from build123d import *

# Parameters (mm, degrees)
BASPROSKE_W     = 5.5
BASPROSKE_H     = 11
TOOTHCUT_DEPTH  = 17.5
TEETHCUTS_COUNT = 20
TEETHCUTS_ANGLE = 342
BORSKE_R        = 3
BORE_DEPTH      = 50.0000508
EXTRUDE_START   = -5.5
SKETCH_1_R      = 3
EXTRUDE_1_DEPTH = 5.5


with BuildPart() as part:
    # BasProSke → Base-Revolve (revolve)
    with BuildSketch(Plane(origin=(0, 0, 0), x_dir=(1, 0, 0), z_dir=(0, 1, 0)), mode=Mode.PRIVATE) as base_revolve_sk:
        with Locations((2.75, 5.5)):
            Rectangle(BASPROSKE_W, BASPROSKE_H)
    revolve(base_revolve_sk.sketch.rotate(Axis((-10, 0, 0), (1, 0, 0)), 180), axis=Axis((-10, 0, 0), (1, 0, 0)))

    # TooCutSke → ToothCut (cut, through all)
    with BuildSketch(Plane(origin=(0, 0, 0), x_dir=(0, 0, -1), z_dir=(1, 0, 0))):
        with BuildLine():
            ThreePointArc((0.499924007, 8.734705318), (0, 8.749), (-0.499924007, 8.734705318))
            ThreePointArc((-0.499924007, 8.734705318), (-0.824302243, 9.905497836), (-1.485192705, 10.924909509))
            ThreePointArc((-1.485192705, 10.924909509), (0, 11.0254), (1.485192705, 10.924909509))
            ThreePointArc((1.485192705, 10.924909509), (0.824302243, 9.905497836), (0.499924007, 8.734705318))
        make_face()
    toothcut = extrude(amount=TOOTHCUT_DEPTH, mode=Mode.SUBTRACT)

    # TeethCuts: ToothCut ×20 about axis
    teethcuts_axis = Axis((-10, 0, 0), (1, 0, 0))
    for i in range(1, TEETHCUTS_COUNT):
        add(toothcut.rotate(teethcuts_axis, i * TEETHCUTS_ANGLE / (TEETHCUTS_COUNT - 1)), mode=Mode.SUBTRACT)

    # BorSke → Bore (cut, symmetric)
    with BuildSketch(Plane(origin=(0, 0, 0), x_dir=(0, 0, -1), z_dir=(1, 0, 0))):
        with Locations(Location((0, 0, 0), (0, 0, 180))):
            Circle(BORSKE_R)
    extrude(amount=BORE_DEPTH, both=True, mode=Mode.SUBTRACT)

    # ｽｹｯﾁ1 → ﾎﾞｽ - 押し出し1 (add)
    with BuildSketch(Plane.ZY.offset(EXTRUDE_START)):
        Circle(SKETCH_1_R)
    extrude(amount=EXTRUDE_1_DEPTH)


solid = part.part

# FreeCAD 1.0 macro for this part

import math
import FreeCAD as App
import Part
import Sketcher

doc = App.newDocument("Part")
body = doc.addObject("PartDesign::Body", "Body")

# Sketch on XZ plane
sketch1 = body.newObject("Sketcher::SketchObject", "Sketch")
sketch1.AttachmentSupport = (doc.getObject("XZ_Plane"), [""])
sketch1.MapMode = "FlatFace"
sketch1.addGeometry([
    Part.LineSegment(App.Vector(0, -11, 0), App.Vector(0, 0, 0)),
    Part.LineSegment(App.Vector(0, 0, 0), App.Vector(5.5, 0, 0)),
    Part.LineSegment(App.Vector(5.5, 0, 0), App.Vector(5.5, -11, 0)),
    Part.LineSegment(App.Vector(5.5, -11, 0), App.Vector(0, -11, 0)),
], False)
sketch1.addConstraint([
    Sketcher.Constraint("Coincident", 0, 2, 1, 1),
    Sketcher.Constraint("Coincident", 1, 2, 2, 1),
    Sketcher.Constraint("Coincident", 2, 2, 3, 1),
    Sketcher.Constraint("Coincident", 3, 2, 0, 1),
    Sketcher.Constraint("Vertical", 0),
    Sketcher.Constraint("Horizontal", 1),
    Sketcher.Constraint("Vertical", 2),
    Sketcher.Constraint("Horizontal", 3),
    Sketcher.Constraint("Coincident", 0, 2, -1, 1),
    Sketcher.Constraint("DistanceY", 0, 1, 0, 2, 11.0),
    Sketcher.Constraint("DistanceX", 1, 1, 1, 2, 5.5),
])
revolution = body.newObject("PartDesign::Revolution", "Revolution")
revolution.Profile = sketch1
revolution.ReferenceAxis = (sketch1, ["H_Axis"])
revolution.Angle = 360

# Sketch on YZ plane
sketch2 = body.newObject("Sketcher::SketchObject", "Sketch001")
sketch2.AttachmentSupport = (doc.getObject("YZ_Plane"), [""])
sketch2.MapMode = "FlatFace"
sketch2.addGeometry([
    Part.ArcOfCircle(Part.Circle(App.Vector(0, 0, 0), App.Vector(0, 0, 1), 8.749), math.radians(-3.275705), math.radians(3.275705)),
    Part.ArcOfCircle(Part.Circle(App.Vector(8.264487, -4.47219, 0), App.Vector(0, 0, 1), 4), math.radians(48.309566), math.radians(83.249005)),
    Part.ArcOfCircle(Part.Circle(App.Vector(0, 0, 0), App.Vector(0, 0, 1), 11.0254), math.radians(-7.741647), math.radians(7.741647)),
    Part.ArcOfCircle(Part.Circle(App.Vector(8.264487, 4.47219, 0), App.Vector(0, 0, 1), 4), math.radians(-83.249005), math.radians(-48.309566)),
], False)
sketch2.addConstraint([
    Sketcher.Constraint("Coincident", 0, 1, 1, 2),
    Sketcher.Constraint("Coincident", 1, 1, 2, 1),
    Sketcher.Constraint("Coincident", 2, 2, 3, 2),
    Sketcher.Constraint("Coincident", 3, 1, 0, 2),
    Sketcher.Constraint("Coincident", 0, 3, -1, 1),
    Sketcher.Constraint("Coincident", 2, 3, -1, 1),
    Sketcher.Constraint("Equal", 1, 3),
    Sketcher.Constraint("Symmetric", 1, 3, 3, 3, -1),
    Sketcher.Constraint("Radius", 1, 4.0),
    Sketcher.Constraint("Radius", 0, 8.749),
    Sketcher.Constraint("Radius", 2, 11.0254),
    Sketcher.Constraint("DistanceY", 1, 3, -1, 1, 4.47219),
    Sketcher.Constraint("DistanceX", -1, 1, 1, 1, 10.92491),
])
pocket1 = body.newObject("PartDesign::Pocket", "Pocket")
pocket1.Profile = sketch2
pocket1.Type = "ThroughAll"
pocket1.Reversed = True
doc.recompute()

polarpattern = body.newObject("PartDesign::PolarPattern", "PolarPattern")
polarpattern.Originals = [pocket1]
polarpattern.Axis = (doc.getObject("X_Axis"), [""])
polarpattern.Angle = 360
polarpattern.Occurrences = 20
body.Tip = polarpattern

# Sketch on YZ plane
sketch3 = body.newObject("Sketcher::SketchObject", "Sketch002")
sketch3.AttachmentSupport = (doc.getObject("YZ_Plane"), [""])
sketch3.MapMode = "FlatFace"
sketch3.addGeometry(Part.Circle(App.Vector(0, 0, 0), App.Vector(0, 0, 1), 3), False)
sketch3.addConstraint([
    Sketcher.Constraint("Coincident", 0, 3, -1, 1),
    Sketcher.Constraint("Diameter", 0, 6.0),
])
pocket2 = body.newObject("PartDesign::Pocket", "Pocket001")
pocket2.Profile = sketch3
pocket2.Length = 100.000102
pocket2.Midplane = True

# Sketch on YZ plane
sketch4 = body.newObject("Sketcher::SketchObject", "Sketch003")
sketch4.AttachmentSupport = (doc.getObject("YZ_Plane"), [""])
sketch4.MapMode = "FlatFace"
sketch4.AttachmentOffset = App.Placement(App.Vector(0, 0, 5.5), App.Rotation())
sketch4.addGeometry(Part.Circle(App.Vector(0, 0, 0), App.Vector(0, 0, 1), 3), False)
sketch4.addConstraint([
    Sketcher.Constraint("Coincident", 0, 3, -1, 1),
    Sketcher.Constraint("Diameter", 0, 6.0),
])
pad1 = body.newObject("PartDesign::Pad", "Pad")
pad1.Profile = sketch4
pad1.Length = 5.5
pad1.Reversed = True

doc.recompute()
